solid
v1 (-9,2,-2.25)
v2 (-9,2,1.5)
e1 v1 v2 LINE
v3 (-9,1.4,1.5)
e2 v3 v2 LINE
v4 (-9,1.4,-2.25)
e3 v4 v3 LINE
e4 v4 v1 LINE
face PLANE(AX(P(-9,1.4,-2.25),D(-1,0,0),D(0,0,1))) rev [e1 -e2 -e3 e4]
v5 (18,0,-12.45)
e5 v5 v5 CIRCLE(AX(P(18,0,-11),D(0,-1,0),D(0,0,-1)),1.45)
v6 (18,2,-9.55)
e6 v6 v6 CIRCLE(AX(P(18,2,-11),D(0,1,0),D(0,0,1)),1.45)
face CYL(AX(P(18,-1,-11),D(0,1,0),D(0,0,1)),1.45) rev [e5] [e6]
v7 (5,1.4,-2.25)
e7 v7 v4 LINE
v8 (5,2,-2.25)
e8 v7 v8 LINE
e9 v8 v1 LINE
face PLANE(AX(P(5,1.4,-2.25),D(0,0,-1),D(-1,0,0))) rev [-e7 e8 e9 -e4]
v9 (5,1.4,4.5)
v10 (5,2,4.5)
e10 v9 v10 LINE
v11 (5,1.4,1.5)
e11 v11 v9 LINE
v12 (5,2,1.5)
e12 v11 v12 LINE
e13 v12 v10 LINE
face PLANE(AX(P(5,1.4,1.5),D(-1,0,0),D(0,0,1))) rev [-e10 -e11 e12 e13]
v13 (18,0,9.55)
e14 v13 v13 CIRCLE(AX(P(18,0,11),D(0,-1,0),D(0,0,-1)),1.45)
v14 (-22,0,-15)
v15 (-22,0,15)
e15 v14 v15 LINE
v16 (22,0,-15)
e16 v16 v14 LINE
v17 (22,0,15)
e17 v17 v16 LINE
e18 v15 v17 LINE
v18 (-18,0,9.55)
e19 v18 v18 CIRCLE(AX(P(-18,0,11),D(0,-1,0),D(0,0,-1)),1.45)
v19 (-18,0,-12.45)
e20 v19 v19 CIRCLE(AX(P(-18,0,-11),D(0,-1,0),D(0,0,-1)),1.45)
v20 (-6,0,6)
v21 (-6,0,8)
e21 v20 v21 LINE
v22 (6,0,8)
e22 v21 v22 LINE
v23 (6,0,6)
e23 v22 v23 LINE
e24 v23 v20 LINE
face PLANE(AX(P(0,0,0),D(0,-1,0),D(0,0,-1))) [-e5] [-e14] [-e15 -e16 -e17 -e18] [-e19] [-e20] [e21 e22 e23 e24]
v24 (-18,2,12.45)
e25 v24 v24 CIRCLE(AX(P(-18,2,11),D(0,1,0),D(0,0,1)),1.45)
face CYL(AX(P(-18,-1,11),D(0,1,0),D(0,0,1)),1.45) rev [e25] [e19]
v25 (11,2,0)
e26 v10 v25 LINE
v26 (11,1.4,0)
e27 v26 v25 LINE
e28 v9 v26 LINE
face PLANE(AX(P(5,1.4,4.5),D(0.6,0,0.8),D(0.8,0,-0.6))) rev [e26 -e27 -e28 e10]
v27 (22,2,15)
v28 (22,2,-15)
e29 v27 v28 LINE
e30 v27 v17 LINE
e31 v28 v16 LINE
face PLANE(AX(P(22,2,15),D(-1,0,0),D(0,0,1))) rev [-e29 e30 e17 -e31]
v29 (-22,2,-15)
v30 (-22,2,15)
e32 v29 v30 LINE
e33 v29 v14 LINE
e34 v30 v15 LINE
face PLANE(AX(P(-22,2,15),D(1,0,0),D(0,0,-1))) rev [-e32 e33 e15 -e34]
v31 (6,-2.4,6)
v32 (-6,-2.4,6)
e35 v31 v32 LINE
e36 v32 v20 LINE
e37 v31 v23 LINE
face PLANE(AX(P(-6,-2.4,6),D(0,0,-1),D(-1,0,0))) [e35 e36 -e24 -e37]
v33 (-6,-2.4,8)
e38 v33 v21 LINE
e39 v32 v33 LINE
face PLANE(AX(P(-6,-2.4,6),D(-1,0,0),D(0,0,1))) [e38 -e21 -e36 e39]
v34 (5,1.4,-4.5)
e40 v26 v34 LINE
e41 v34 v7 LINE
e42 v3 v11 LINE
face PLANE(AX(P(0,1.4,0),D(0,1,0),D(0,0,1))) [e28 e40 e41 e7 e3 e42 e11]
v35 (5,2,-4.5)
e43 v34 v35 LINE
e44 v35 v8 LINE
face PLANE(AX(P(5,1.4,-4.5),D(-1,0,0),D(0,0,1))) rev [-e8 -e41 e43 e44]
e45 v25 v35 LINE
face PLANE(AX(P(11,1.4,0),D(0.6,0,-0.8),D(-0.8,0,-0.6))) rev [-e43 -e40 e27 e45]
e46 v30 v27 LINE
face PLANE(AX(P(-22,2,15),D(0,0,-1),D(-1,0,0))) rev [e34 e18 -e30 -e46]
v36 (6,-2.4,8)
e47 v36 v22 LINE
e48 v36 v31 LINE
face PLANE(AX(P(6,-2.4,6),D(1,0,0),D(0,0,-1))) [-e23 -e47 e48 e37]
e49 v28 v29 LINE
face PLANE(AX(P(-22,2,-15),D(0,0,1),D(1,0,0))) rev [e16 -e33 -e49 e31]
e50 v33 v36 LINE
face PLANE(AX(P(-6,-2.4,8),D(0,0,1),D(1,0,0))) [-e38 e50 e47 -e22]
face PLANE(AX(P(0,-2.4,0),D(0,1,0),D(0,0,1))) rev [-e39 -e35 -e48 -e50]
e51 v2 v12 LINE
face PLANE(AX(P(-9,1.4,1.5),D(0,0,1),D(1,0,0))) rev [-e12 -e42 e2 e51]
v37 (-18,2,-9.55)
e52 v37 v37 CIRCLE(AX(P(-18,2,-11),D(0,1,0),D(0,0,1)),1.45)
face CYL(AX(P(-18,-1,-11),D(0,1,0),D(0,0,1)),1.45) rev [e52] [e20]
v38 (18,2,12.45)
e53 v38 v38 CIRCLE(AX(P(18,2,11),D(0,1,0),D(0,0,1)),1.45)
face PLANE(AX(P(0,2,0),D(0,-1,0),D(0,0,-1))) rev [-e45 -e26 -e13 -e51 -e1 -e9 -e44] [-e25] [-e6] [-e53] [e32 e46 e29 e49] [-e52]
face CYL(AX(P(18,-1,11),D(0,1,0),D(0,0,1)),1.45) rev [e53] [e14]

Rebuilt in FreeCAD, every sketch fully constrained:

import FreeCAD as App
import Part
import Sketcher
Q = App.Units.Quantity


def add_polygon(sketch, points):
    """Adds a closed chain of lines whose ends are joined by coincident constraints."""
    first, n = sketch.GeometryCount, len(points)
    for a, b in zip(points, points[1:] + points[:1]):
        sketch.addGeometry(Part.LineSegment(App.Vector(*a, 0), App.Vector(*b, 0)), False)
    for i in range(n):
        sketch.addConstraint(Sketcher.Constraint("Coincident", first + i, 2, first + (i + 1) % n, 1))

doc = App.newDocument("Part")
body = doc.addObject("PartDesign::Body", "Body")

# Sketch on XZ plane
sketch1 = body.newObject("Sketcher::SketchObject", "Sketch")
sketch1.AttachmentSupport = (doc.getObject("XZ_Plane"), [""])
sketch1.MapMode = "FlatFace"
add_polygon(sketch1, [(-22, -15), (-22, 15), (22, 15), (22, -15)])  # lines 0-3
sketch1.addConstraint([
    Sketcher.Constraint("Vertical", 0),
    Sketcher.Constraint("Horizontal", 1),
    Sketcher.Constraint("Vertical", 2),
    Sketcher.Constraint("Horizontal", 3),
    Sketcher.Constraint("Symmetric", 0, 2, 2, 2, -1, 1),
    Sketcher.Constraint("DistanceX", 1, 1, 1, 2, Q("44 mm")),
    Sketcher.Constraint("DistanceY", 0, 1, 0, 2, Q("30 mm")),
])
pad1 = body.newObject("PartDesign::Pad", "Pad")
pad1.Profile = sketch1
pad1.Length = 2
pad1.Reversed = True

# Sketch on XZ plane
sketch2 = body.newObject("Sketcher::SketchObject", "Sketch001")
sketch2.AttachmentSupport = (doc.getObject("XZ_Plane"), [""])
sketch2.MapMode = "FlatFace"
sketch2.AttachmentOffset = App.Placement(App.Vector(0, 0, -2), App.Rotation())
sketch2.addGeometry([
    Part.Circle(App.Vector(-18, 11, 0), App.Vector(0, 0, 1), 1.4),
    Part.Circle(App.Vector(-18, -11, 0), App.Vector(0, 0, 1), 1.4),
    Part.Circle(App.Vector(18, 11, 0), App.Vector(0, 0, 1), 1.4),
    Part.Circle(App.Vector(18, -11, 0), App.Vector(0, 0, 1), 1.4),
], False)
sketch2.addConstraint([
    Sketcher.Constraint("Equal", 0, 1),
    Sketcher.Constraint("Equal", 1, 2),
    Sketcher.Constraint("Equal", 2, 3),
    Sketcher.Constraint("Symmetric", 1, 3, 2, 3, -1, 1),
    Sketcher.Constraint("Symmetric", 0, 3, 3, 3, -1, 1),
    Sketcher.Constraint("Symmetric", 0, 3, 2, 3, -2),
    Sketcher.Constraint("Diameter", 0, Q("2.9 mm")),
    Sketcher.Constraint("DistanceX", 0, 3, -1, 1, Q("18 mm")),
    Sketcher.Constraint("DistanceY", -1, 1, 0, 3, Q("11 mm")),
])
pocket1 = body.newObject("PartDesign::Pocket", "Pocket")
pocket1.Profile = sketch2
pocket1.Length = 3
pocket1.Reversed = True

# Sketch on XZ plane
sketch3 = body.newObject("Sketcher::SketchObject", "Sketch002")
sketch3.AttachmentSupport = (doc.getObject("XZ_Plane"), [""])
sketch3.MapMode = "FlatFace"
sketch3.AttachmentOffset = App.Placement(App.Vector(0, 0, -2), App.Rotation())
add_polygon(sketch3, [(-9, 1.5), (5, 1.5), (5, 4.5), (11, 0), (5, -4.5), (5, -2.2), (-9, -2.2)])  # lines 0-6
sketch3.addConstraint([
    Sketcher.Constraint("Horizontal", 0),
    Sketcher.Constraint("Vertical", 1),
    Sketcher.Constraint("Vertical", 4),
    Sketcher.Constraint("Horizontal", 5),
    Sketcher.Constraint("Vertical", 6),
    Sketcher.Constraint("Symmetric", 1, 2, 3, 2, -1),
    Sketcher.Constraint("PointOnObject", 2, 2, -1),
    Sketcher.Constraint("DistanceX", 0, 1, 0, 2, Q("14 mm")),
    Sketcher.Constraint("DistanceY", 1, 1, 1, 2, Q("3 mm")),
    Sketcher.Constraint("DistanceX", -1, 1, 0, 2, Q("5 mm")),
    Sketcher.Constraint("DistanceX", -1, 1, 2, 2, Q("11 mm")),
    Sketcher.Constraint("DistanceY", 3, 2, 0, 2, Q("6 mm")),
    Sketcher.Constraint("DistanceY", 4, 1, 4, 2, Q("2.25 mm")),
])
pocket2 = body.newObject("PartDesign::Pocket", "Pocket001")
pocket2.Profile = sketch3
pocket2.Length = 0.6
pocket2.Reversed = True

# Sketch on XZ plane
sketch4 = body.newObject("Sketcher::SketchObject", "Sketch003")
sketch4.AttachmentSupport = (doc.getObject("XZ_Plane"), [""])
sketch4.MapMode = "FlatFace"
add_polygon(sketch4, [(-6, 6), (-6, 8), (6, 8), (6, 6)])  # lines 0-3
sketch4.addConstraint([
    Sketcher.Constraint("Vertical", 0),
    Sketcher.Constraint("Horizontal", 1),
    Sketcher.Constraint("Vertical", 2),
    Sketcher.Constraint("Horizontal", 3),
    Sketcher.Constraint("DistanceX", 1, 1, 1, 2, Q("12 mm")),
    Sketcher.Constraint("DistanceY", 0, 1, 0, 2, Q("2 mm")),
    Sketcher.Constraint("DistanceX", 0, 2, -1, 1, Q("6 mm")),
    Sketcher.Constraint("DistanceY", -1, 1, 0, 2, Q("8 mm")),
])
pad2 = body.newObject("PartDesign::Pad", "Pad001")
pad2.Profile = sketch4
pad2.Length = 2.4

doc.recompute()
